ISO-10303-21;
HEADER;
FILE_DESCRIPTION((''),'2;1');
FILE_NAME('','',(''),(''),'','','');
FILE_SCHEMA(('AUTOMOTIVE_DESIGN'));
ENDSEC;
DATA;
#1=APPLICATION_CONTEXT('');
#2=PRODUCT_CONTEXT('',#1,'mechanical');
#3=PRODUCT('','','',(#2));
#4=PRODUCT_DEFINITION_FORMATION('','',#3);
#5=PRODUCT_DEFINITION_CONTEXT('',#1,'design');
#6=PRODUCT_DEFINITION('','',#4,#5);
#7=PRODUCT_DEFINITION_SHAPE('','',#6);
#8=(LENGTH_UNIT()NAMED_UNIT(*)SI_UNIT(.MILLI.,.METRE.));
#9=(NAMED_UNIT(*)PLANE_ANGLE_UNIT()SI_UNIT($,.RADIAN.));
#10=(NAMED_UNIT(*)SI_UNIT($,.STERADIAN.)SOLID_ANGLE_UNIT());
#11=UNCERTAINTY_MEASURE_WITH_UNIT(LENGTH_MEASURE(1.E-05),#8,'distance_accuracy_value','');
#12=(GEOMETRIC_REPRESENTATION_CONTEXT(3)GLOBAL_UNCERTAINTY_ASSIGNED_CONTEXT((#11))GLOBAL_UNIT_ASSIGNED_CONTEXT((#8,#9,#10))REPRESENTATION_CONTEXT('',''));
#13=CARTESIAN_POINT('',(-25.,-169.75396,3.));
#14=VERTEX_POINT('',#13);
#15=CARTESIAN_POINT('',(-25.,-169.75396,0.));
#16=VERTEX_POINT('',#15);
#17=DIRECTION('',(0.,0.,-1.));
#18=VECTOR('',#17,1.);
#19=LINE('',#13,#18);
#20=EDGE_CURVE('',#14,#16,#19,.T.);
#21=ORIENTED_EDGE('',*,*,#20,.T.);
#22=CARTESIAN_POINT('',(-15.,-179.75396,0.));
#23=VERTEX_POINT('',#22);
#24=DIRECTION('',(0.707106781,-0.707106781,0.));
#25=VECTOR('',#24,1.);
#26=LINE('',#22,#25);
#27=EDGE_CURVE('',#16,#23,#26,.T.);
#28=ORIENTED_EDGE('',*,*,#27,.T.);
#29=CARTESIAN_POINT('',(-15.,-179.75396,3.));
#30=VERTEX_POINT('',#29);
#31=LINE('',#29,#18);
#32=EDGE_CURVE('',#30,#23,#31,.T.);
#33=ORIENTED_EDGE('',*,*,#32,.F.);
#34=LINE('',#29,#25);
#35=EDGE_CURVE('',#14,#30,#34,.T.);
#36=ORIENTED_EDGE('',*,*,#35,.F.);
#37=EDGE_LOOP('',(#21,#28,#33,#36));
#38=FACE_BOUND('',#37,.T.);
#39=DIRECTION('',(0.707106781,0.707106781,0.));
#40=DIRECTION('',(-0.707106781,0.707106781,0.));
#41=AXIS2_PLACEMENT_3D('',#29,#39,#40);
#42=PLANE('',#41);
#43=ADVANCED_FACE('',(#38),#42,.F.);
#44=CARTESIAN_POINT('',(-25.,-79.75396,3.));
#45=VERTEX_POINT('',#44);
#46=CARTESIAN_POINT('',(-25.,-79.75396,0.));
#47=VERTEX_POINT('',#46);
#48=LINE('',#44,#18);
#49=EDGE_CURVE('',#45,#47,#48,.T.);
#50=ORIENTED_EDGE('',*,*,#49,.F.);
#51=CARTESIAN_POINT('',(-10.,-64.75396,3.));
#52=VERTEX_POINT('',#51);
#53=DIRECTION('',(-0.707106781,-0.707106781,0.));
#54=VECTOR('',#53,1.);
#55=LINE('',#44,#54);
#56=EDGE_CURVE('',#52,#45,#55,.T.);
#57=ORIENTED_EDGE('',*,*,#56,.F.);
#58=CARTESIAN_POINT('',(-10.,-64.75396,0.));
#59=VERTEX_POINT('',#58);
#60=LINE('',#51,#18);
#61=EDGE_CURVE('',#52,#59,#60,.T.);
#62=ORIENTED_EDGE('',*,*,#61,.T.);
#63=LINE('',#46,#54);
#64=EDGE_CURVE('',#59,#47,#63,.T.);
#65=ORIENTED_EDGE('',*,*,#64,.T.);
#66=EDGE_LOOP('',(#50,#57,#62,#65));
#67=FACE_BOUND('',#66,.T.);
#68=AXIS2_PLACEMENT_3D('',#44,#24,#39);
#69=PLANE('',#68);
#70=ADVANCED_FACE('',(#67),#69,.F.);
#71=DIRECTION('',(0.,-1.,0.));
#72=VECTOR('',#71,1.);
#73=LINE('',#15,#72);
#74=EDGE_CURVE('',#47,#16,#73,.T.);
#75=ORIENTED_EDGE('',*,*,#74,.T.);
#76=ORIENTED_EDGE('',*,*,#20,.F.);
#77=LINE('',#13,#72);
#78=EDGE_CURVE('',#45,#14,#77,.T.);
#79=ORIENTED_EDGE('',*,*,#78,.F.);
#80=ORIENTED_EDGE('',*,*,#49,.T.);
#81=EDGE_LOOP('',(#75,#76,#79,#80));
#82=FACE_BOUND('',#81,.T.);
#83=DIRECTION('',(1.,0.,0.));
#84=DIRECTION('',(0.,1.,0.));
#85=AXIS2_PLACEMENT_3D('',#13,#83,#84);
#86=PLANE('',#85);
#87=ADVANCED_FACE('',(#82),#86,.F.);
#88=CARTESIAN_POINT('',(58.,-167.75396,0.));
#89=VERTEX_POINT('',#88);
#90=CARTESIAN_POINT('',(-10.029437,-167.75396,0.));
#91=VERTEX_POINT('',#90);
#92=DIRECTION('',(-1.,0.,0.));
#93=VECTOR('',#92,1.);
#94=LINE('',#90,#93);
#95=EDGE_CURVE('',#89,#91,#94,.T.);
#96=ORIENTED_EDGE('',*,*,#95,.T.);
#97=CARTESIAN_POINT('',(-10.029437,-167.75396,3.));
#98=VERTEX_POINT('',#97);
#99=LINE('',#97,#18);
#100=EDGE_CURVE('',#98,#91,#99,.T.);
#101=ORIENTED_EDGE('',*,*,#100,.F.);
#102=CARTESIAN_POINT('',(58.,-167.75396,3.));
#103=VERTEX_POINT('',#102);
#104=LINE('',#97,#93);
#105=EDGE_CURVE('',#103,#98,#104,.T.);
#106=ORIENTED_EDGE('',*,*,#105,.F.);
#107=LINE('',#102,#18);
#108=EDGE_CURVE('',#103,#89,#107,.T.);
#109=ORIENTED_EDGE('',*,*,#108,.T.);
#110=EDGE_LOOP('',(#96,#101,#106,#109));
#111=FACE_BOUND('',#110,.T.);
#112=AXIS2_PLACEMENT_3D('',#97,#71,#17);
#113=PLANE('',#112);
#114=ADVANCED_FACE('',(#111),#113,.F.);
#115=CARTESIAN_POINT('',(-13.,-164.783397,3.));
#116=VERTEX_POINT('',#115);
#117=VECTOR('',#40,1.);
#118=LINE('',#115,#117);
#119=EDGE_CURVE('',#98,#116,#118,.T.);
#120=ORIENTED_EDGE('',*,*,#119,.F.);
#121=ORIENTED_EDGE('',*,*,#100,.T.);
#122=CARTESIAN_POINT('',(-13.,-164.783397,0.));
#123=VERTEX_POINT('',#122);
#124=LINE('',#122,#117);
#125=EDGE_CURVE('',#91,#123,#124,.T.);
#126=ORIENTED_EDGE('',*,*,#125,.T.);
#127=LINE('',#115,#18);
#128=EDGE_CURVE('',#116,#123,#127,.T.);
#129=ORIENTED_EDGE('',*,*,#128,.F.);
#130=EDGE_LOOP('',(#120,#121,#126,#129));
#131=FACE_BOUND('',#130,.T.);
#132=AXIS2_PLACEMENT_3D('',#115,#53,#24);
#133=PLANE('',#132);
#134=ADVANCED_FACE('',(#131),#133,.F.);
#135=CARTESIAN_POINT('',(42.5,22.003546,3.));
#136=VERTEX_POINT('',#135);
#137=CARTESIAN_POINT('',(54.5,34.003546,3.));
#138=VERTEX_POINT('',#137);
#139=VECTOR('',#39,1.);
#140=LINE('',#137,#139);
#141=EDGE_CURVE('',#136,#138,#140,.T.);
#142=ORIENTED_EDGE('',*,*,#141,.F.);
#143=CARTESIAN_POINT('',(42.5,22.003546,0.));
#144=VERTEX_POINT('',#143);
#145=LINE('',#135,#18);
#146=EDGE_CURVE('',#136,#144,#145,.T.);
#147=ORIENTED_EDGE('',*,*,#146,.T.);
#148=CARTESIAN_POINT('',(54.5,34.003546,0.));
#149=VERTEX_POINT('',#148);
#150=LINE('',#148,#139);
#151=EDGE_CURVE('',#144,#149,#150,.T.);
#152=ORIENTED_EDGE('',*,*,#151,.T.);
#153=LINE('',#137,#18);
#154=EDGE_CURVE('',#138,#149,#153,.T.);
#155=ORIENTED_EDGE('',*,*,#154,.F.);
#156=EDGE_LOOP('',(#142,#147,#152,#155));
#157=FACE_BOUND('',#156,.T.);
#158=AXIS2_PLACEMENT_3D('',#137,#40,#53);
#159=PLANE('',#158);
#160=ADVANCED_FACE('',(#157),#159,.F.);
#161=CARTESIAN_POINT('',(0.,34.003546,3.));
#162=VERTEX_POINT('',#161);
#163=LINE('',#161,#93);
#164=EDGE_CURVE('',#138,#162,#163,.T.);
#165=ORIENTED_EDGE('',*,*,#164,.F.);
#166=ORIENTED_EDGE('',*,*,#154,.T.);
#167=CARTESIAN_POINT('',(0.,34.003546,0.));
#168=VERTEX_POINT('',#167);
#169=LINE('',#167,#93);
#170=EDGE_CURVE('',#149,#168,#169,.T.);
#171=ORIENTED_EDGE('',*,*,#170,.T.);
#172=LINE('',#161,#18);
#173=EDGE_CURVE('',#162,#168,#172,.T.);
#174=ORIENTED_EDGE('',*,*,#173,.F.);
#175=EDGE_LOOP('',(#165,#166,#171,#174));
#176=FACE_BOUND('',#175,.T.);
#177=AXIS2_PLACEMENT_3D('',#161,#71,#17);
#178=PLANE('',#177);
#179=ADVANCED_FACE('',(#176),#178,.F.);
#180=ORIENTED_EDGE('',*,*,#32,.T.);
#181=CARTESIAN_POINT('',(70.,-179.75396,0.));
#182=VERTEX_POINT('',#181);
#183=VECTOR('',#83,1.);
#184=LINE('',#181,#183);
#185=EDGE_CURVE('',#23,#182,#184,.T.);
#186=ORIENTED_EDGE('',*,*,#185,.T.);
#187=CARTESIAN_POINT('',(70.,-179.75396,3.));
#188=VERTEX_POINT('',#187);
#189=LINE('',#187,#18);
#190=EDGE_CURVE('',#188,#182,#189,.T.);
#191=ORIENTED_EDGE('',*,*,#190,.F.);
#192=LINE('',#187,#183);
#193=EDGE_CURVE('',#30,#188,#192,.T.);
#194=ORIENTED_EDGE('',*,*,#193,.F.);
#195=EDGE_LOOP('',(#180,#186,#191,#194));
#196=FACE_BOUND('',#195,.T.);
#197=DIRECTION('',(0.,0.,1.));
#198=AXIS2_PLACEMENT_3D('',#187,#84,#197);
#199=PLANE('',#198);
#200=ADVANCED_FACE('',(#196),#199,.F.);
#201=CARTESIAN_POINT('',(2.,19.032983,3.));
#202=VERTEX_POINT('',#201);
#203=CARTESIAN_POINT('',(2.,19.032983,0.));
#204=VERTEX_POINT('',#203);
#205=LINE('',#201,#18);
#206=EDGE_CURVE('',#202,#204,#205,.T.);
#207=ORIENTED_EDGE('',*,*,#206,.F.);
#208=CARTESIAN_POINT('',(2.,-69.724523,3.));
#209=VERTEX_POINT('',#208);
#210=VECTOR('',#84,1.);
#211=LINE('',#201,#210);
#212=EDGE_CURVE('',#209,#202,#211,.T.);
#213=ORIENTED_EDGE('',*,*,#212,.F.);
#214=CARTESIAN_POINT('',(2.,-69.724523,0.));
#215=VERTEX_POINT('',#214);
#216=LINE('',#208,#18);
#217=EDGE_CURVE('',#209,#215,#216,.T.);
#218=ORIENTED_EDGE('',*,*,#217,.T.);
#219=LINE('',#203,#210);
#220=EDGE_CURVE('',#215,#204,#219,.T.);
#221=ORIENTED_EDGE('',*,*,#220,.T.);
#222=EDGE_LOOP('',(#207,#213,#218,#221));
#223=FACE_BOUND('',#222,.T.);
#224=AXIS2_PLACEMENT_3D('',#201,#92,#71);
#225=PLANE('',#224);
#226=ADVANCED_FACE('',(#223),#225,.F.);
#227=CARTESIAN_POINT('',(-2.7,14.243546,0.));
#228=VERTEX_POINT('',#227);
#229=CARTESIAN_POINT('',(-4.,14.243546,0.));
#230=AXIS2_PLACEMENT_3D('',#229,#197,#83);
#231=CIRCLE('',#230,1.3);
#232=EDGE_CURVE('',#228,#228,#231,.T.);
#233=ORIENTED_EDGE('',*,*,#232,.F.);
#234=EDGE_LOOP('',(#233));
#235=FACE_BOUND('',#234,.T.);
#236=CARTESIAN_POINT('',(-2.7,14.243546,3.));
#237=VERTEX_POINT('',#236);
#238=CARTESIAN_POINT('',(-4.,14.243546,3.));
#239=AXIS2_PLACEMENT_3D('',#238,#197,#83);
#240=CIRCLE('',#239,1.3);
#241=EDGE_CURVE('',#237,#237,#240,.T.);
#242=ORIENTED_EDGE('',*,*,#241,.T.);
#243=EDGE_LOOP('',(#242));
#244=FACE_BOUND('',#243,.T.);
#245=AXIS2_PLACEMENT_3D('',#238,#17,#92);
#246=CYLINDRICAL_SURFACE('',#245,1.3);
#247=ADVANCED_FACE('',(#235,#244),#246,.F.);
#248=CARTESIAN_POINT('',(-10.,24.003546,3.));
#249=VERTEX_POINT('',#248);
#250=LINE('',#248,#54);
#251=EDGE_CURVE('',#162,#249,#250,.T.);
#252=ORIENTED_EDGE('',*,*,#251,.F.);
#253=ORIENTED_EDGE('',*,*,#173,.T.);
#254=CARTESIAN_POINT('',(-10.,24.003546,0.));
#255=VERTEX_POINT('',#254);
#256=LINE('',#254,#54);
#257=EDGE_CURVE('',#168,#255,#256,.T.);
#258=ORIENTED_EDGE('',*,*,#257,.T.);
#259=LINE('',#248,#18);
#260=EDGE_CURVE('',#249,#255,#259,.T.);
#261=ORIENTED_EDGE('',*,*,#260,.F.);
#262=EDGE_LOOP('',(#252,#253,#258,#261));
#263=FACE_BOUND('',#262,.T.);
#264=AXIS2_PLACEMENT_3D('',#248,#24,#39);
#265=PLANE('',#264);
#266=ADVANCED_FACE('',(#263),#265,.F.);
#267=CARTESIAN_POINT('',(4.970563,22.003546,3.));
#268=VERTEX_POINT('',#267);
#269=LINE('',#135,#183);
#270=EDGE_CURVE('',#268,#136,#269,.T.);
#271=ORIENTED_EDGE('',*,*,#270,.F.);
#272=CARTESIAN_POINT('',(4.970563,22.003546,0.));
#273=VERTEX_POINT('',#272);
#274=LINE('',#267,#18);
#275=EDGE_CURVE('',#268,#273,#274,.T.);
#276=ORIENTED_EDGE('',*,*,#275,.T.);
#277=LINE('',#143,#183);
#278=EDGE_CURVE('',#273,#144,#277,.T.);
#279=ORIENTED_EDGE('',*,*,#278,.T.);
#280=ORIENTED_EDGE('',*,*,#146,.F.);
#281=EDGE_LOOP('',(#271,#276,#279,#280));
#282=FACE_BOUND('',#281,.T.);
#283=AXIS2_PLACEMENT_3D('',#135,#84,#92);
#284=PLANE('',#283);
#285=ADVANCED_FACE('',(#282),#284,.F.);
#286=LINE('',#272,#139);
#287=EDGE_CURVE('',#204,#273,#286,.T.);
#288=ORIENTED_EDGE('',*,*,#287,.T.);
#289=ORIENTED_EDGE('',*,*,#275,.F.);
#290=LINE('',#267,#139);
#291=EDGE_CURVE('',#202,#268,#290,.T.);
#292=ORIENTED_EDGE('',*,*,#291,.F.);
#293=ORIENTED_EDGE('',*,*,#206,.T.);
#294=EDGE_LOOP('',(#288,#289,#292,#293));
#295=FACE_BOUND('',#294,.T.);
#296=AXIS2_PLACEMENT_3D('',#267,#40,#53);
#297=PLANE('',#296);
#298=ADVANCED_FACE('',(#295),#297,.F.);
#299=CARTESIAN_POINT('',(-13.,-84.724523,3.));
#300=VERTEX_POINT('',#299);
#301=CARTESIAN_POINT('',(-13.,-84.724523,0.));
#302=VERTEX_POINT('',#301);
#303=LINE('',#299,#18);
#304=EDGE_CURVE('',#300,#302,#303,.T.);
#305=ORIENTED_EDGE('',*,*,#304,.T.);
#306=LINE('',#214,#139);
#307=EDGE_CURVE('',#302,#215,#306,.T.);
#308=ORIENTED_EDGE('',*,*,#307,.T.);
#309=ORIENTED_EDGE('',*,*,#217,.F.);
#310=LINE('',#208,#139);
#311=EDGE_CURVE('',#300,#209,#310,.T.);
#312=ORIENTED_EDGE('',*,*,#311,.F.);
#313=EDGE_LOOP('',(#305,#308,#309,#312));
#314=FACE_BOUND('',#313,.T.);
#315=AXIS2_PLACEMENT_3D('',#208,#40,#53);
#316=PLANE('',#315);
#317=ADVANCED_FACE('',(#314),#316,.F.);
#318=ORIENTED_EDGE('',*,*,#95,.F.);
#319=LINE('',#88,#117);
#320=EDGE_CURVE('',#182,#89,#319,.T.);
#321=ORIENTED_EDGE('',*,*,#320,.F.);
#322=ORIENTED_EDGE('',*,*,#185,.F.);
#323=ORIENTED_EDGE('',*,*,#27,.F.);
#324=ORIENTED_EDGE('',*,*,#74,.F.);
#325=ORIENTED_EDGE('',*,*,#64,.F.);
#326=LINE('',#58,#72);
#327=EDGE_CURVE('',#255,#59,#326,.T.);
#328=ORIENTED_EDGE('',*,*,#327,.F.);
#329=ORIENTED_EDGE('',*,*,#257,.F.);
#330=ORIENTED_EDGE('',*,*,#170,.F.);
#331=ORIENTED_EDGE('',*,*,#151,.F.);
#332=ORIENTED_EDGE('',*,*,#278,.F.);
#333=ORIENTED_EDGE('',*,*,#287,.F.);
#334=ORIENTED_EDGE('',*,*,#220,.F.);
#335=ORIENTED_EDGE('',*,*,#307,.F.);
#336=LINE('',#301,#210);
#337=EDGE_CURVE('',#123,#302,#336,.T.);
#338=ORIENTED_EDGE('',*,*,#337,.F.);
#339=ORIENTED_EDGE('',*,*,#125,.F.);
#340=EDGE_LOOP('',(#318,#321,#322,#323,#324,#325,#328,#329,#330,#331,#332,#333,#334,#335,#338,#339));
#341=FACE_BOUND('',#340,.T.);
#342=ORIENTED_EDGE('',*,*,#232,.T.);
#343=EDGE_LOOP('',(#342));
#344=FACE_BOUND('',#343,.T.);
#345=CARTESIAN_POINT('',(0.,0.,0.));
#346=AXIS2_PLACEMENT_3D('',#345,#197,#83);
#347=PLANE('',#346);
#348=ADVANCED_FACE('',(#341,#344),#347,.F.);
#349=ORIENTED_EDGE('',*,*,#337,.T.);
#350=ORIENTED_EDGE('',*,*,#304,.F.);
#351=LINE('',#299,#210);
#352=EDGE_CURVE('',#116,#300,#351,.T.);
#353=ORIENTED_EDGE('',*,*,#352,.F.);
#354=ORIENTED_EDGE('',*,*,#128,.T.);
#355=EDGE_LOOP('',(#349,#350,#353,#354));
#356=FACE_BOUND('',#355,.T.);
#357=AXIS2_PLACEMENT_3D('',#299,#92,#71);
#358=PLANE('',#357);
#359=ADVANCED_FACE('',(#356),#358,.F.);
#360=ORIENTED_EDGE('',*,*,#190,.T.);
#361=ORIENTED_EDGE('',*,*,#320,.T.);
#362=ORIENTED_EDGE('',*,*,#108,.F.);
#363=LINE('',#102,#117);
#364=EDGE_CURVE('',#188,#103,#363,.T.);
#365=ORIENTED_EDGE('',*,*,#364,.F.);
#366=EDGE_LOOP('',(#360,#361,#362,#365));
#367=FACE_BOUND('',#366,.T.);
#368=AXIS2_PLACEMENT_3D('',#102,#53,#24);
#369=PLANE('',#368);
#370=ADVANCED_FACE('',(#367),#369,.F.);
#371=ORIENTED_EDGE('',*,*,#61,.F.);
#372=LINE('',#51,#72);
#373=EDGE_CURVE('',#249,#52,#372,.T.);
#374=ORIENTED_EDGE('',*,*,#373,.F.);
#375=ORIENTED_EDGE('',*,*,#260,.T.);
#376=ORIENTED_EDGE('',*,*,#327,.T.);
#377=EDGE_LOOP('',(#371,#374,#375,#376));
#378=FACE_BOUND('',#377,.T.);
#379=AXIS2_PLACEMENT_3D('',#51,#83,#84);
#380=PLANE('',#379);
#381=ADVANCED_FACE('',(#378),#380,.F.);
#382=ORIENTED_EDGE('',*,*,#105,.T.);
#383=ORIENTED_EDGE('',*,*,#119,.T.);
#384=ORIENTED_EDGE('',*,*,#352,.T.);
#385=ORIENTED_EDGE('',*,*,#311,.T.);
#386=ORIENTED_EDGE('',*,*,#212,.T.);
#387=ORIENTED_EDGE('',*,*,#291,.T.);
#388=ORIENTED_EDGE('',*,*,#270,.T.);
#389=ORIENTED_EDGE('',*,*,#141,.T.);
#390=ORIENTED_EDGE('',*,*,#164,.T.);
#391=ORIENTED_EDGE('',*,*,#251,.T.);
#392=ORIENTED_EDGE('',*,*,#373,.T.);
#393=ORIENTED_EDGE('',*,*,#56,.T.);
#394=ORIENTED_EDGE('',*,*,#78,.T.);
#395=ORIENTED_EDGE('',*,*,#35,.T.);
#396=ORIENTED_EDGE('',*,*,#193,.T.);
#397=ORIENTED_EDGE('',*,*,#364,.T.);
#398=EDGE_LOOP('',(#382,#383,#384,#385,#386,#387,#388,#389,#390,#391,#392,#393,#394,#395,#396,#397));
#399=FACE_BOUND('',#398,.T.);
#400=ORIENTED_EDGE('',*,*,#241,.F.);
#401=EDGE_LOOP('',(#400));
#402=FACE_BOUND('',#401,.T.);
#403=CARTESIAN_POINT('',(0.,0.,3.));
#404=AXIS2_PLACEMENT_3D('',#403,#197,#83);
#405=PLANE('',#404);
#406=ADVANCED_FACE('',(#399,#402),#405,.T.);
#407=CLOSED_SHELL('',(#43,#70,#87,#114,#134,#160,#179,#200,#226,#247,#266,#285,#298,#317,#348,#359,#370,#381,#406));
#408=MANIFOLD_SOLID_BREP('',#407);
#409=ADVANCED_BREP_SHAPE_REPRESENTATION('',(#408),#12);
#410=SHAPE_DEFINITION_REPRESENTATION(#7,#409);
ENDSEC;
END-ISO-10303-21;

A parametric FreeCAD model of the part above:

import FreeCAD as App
import Part
import Sketcher
from FreeCAD import Vector
Q = App.Units.Quantity


def add_polygon(sketch, points):
    """Adds a closed chain of lines whose ends are joined by coincident constraints."""
    first, n = sketch.GeometryCount, len(points)
    for a, b in zip(points, points[1:] + points[:1]):
        sketch.addGeometry(Part.LineSegment(App.Vector(*a, 0), App.Vector(*b, 0)), False)
    for i in range(n):
        sketch.addConstraint(Sketcher.Constraint("Coincident", first + i, 2, first + (i + 1) % n, 1))

doc = App.newDocument("Part")
params = doc.addObject("Spreadsheet::Sheet", "Params")
for row, (alias, value) in enumerate([
    ("sketch1_diameter", "2.6 mm"),
    ("sketch1_width", "85 mm"),
    ("sketch1_height", "90 mm"),
    ("sketch1_width2", "54.5 mm"),
    ("pad1_length", "3 mm"),
], start=1):
    params.set(f"A{row}", alias)
    params.set(f"B{row}", "=" + value)
    params.setAlias(f"B{row}", alias)

body = doc.addObject("PartDesign::Body", "Body")

# Sketch on XY plane
sketch1 = body.newObject("Sketcher::SketchObject", "Sketch")
sketch1.AttachmentSupport = (doc.getObject("XY_Plane"), [""])
sketch1.MapMode = "FlatFace"
add_polygon(sketch1, [(-15, -179.8), (70, -179.8), (58, -167.8), (-10, -167.8), (-13, -164.8), (-13, -84.7), (2, -69.7), (2, 19), (5, 22), (42.5, 22), (54.5, 34), (0, 34), (-10, 24), (-10, -64.8), (-25, -79.8), (-25, -169.8)])  # lines 0-15
sketch1.addGeometry(Part.Circle(Vector(-4, 14.2, 0), Vector(0, 0, 1), 1.3), False)  # 16
sketch1.addConstraint([
    Sketcher.Constraint("Horizontal", 0),
    Sketcher.Constraint("Horizontal", 2),
    Sketcher.Constraint("Vertical", 4),
    Sketcher.Constraint("Vertical", 6),
    Sketcher.Constraint("Horizontal", 8),
    Sketcher.Constraint("Horizontal", 10),
    Sketcher.Constraint("Vertical", 12),
    Sketcher.Constraint("Vertical", 14),
    Sketcher.Constraint("PointOnObject", 10, 2, -2),
    Sketcher.Constraint("Parallel", 1, 3),
    Sketcher.Constraint("Perpendicular", 3, 5),
    Sketcher.Constraint("Parallel", 5, 7),
    Sketcher.Constraint("Parallel", 7, 9),
    Sketcher.Constraint("Parallel", 9, 11),
    Sketcher.Constraint("Parallel", 11, 13),
    Sketcher.Constraint("Perpendicular", 13, 15),
    Sketcher.Constraint("Equal", 6, 12),
    Sketcher.Constraint("Equal", 3, 7),
    Sketcher.Constraint("Equal", 1, 9),
    Sketcher.Constraint("Equal", 5, 13),
    Sketcher.Constraint("Equal", 11, 15),
    Sketcher.Constraint("Diameter", 16, Q("2.6 mm")),
    Sketcher.Constraint("DistanceX", 0, 1, 0, 2, Q("85 mm")),
    Sketcher.Constraint("DistanceY", 14, 2, 14, 1, Q("90 mm")),
    Sketcher.Constraint("Angle", 1, Q("135 deg")),
    Sketcher.Constraint("DistanceX", 10, 2, 10, 1, Q("54.5 mm")),
    Sketcher.Constraint("DistanceX", 16, 3, -1, 1, Q("4 mm")),
    Sketcher.Constraint("DistanceX", -1, 1, 0, 2, Q("70 mm")),
    Sketcher.Constraint("DistanceX", -1, 1, 1, 2, Q("58 mm")),
    Sketcher.Constraint("DistanceX", 3, 2, -1, 1, Q("13 mm")),
    Sketcher.Constraint("DistanceX", 11, 2, -1, 1, Q("10 mm")),
    Sketcher.Constraint("DistanceY", 16, 3, 7, 2, Q("7.76 mm")),
    Sketcher.Constraint("Distance", 3, Q("4.20101 mm")),
    Sketcher.Constraint("DistanceY", 6, 1, 6, 2, Q("88.757506 mm")),
    Sketcher.Constraint("DistanceY", 0, 2, -1, 1, Q("179.75396 mm")),
])
sketch1.setExpression("Constraints[37]", "Params.sketch1_diameter")
sketch1.setExpression("Constraints[38]", "Params.sketch1_width")
sketch1.setExpression("Constraints[39]", "Params.sketch1_height")
sketch1.setExpression("Constraints[41]", "Params.sketch1_width2")
pad1 = body.newObject("PartDesign::Pad", "Pad")
pad1.Profile = sketch1
pad1.setExpression("Length", "Params.pad1_length")

doc.recompute()
